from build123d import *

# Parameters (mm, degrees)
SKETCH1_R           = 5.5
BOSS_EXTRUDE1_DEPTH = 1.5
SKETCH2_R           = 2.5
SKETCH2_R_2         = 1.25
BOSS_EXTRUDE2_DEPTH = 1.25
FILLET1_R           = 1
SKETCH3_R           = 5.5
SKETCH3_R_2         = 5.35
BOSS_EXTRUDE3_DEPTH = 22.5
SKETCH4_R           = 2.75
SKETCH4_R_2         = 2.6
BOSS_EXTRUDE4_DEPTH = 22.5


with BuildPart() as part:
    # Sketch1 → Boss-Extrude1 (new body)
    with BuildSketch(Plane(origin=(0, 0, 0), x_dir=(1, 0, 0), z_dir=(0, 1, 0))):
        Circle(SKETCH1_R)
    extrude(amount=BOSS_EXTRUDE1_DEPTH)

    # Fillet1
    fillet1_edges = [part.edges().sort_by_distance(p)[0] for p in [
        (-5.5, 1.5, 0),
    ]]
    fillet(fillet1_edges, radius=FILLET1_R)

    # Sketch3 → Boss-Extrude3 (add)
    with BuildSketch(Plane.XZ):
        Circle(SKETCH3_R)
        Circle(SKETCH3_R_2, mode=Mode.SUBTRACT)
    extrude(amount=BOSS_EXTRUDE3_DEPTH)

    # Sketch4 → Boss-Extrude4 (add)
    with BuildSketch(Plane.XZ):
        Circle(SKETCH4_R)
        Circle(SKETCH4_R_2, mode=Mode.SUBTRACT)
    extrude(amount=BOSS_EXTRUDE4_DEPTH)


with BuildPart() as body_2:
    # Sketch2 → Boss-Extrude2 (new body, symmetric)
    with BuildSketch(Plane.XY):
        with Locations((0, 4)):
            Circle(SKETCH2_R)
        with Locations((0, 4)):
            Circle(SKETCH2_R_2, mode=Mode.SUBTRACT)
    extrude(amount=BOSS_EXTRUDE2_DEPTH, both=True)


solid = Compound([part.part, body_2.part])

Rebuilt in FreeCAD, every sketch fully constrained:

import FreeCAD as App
import Part
import Sketcher


def edges_at(feature, points):
    """Names of the edges that pass closest to the given points."""
    edges = feature.Shape.Edges
    near = lambda p: min(range(len(edges)), key=lambda i: edges[i].distToShape(Part.Vertex(*p))[0])
    return sorted({f"Edge{near(p) + 1}" for p in points})

doc = App.newDocument("Part")
body = doc.addObject("PartDesign::Body", "Body")

# Sketch on XZ plane
sketch1 = body.newObject("Sketcher::SketchObject", "Sketch")
sketch1.AttachmentSupport = (doc.getObject("XZ_Plane"), [""])
sketch1.MapMode = "FlatFace"
sketch1.addGeometry(Part.Circle(App.Vector(0, 0, 0), App.Vector(0, 0, 1), 6), False)
sketch1.addConstraint(Sketcher.Constraint("Coincident", 0, 3, -1, 1))
sketch1.addConstraint(Sketcher.Constraint("Diameter", 0, 11.0))
pad1 = body.newObject("PartDesign::Pad", "Pad")
pad1.Profile = sketch1
pad1.Length = 1.5
pad1.Reversed = True
doc.recompute()

fillet = body.newObject("PartDesign::Fillet", "Fillet")
fillet.Base = (pad1, edges_at(pad1, [(-5.5, 1.5, 0)]))
fillet.Radius = 1

# Sketch on XZ plane
sketch2 = body.newObject("Sketcher::SketchObject", "Sketch001")
sketch2.AttachmentSupport = (doc.getObject("XZ_Plane"), [""])
sketch2.MapMode = "FlatFace"
sketch2.addGeometry(Part.Circle(App.Vector(0, 0, 0), App.Vector(0, 0, 1), 6), False)
sketch2.addGeometry(Part.Circle(App.Vector(0, 0, 0), App.Vector(0, 0, 1), 5), False)
sketch2.addConstraint(Sketcher.Constraint("Coincident", 0, 3, -1, 1))
sketch2.addConstraint(Sketcher.Constraint("Coincident", 1, 3, -1, 1))
sketch2.addConstraint(Sketcher.Constraint("Diameter", 0, 11.0))
sketch2.addConstraint(Sketcher.Constraint("Diameter", 1, 10.7))
pad2 = body.newObject("PartDesign::Pad", "Pad001")
pad2.Profile = sketch2
pad2.Length = 22.5

# Sketch on XZ plane
sketch3 = body.newObject("Sketcher::SketchObject", "Sketch002")
sketch3.AttachmentSupport = (doc.getObject("XZ_Plane"), [""])
sketch3.MapMode = "FlatFace"
sketch3.addGeometry(Part.Circle(App.Vector(0, 0, 0), App.Vector(0, 0, 1), 2.8), False)
sketch3.addGeometry(Part.Circle(App.Vector(0, 0, 0), App.Vector(0, 0, 1), 2.6), False)
sketch3.addConstraint(Sketcher.Constraint("Coincident", 0, 3, -1, 1))
sketch3.addConstraint(Sketcher.Constraint("Coincident", 1, 3, -1, 1))
sketch3.addConstraint(Sketcher.Constraint("Diameter", 0, 5.5))
sketch3.addConstraint(Sketcher.Constraint("Diameter", 1, 5.2))
pad3 = body.newObject("PartDesign::Pad", "Pad002")
pad3.Profile = sketch3
pad3.Length = 22.5
body2 = doc.addObject("PartDesign::Body", "Body001")

# Sketch on XY plane
sketch4 = body2.newObject("Sketcher::SketchObject", "Sketch003")
sketch4.AttachmentSupport = (doc.getObject("XY_Plane001"), [""])
sketch4.MapMode = "FlatFace"
sketch4.addGeometry(Part.Circle(App.Vector(0, 4, 0), App.Vector(0, 0, 1), 2.5), False)
sketch4.addGeometry(Part.Circle(App.Vector(0, 4, 0), App.Vector(0, 0, 1), 1.2), False)
sketch4.addConstraint(Sketcher.Constraint("Coincident", 1, 3, 0, 3))
sketch4.addConstraint(Sketcher.Constraint("PointOnObject", 0, 3, -2))
sketch4.addConstraint(Sketcher.Constraint("Diameter", 0, 5.0))
sketch4.addConstraint(Sketcher.Constraint("Diameter", 1, 2.5))
sketch4.addConstraint(Sketcher.Constraint("DistanceY", -1, 1, 0, 3, 4.0))
pad4 = body2.newObject("PartDesign::Pad", "Pad003")
pad4.Profile = sketch4
pad4.Length = 2.5
pad4.Midplane = True

doc.recompute()
